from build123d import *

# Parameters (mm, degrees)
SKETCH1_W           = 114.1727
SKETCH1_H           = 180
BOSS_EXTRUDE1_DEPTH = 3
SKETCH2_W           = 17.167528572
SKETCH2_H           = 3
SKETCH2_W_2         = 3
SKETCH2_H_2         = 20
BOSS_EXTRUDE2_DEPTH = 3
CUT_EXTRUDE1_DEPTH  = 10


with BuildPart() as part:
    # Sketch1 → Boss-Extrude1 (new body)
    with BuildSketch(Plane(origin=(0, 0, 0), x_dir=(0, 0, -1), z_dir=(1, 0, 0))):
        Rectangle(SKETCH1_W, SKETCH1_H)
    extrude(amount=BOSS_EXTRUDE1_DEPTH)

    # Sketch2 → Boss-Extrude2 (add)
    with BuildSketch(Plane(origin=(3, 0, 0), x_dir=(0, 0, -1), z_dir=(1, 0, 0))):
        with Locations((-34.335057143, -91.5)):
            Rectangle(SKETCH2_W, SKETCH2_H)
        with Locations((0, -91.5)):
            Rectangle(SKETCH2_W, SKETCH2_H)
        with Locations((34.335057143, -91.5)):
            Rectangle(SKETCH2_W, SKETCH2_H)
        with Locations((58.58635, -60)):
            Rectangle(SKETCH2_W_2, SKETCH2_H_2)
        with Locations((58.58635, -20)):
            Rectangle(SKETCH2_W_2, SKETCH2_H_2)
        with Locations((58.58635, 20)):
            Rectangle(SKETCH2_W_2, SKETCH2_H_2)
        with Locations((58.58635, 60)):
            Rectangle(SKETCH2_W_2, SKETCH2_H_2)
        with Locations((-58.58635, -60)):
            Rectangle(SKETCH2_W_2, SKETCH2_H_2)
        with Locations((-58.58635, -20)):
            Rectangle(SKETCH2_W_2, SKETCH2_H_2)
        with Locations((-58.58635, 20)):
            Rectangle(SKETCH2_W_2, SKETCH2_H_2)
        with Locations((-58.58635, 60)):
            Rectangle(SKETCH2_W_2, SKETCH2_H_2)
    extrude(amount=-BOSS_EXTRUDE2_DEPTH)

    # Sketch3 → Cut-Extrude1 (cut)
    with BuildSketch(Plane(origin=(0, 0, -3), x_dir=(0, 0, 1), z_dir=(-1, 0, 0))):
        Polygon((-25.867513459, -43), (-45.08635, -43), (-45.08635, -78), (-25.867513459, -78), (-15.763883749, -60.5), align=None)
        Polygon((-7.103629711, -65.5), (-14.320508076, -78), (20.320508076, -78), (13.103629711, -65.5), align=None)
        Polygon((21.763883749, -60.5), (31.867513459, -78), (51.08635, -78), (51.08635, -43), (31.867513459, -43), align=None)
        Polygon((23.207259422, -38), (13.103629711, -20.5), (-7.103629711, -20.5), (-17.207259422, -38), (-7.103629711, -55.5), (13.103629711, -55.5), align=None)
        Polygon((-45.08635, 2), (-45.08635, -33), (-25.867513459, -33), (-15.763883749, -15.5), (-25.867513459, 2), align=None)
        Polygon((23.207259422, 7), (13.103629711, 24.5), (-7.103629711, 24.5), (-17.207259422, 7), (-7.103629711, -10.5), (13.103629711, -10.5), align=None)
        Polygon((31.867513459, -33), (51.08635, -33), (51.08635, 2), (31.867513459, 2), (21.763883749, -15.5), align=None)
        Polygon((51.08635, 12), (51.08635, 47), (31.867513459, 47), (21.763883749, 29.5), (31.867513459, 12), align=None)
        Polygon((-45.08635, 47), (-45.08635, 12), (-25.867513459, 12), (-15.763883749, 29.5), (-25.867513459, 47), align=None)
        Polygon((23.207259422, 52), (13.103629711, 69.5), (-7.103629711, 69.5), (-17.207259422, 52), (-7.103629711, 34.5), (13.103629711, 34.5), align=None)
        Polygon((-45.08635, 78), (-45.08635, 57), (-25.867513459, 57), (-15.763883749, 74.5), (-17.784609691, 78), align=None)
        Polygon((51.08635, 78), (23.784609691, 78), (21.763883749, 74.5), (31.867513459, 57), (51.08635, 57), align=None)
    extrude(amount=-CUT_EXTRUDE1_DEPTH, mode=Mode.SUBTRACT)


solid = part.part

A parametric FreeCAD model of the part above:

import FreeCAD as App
import Part
import Sketcher
Q = App.Units.Quantity

doc = App.newDocument("Part")
body = doc.addObject("PartDesign::Body", "Body")

# Sketch on YZ plane
sketch1 = body.newObject("Sketcher::SketchObject", "Sketch")
sketch1.AttachmentSupport = (doc.getObject("YZ_Plane"), [""])
sketch1.MapMode = "FlatFace"
sketch1.addGeometry([
    Part.LineSegment(App.Vector(90, 57, 0), App.Vector(-90, 57, 0)),
    Part.LineSegment(App.Vector(-90, 57, 0), App.Vector(-90, -57, 0)),
    Part.LineSegment(App.Vector(-90, -57, 0), App.Vector(90, -57, 0)),
    Part.LineSegment(App.Vector(90, -57, 0), App.Vector(90, 57, 0)),
], False)
sketch1.addConstraint([
    Sketcher.Constraint("Coincident", 0, 2, 1, 1),
    Sketcher.Constraint("Coincident", 1, 2, 2, 1),
    Sketcher.Constraint("Coincident", 2, 2, 3, 1),
    Sketcher.Constraint("Coincident", 3, 2, 0, 1),
    Sketcher.Constraint("Horizontal", 0),
    Sketcher.Constraint("Vertical", 1),
    Sketcher.Constraint("Horizontal", 2),
    Sketcher.Constraint("Vertical", 3),
    Sketcher.Constraint("Symmetric", 0, 2, 2, 2, -1, 1),
    Sketcher.Constraint("DistanceX", 0, 2, 0, 1, 180.0),
    Sketcher.Constraint("DistanceY", 1, 2, 1, 1, 114.1727),
])
pad1 = body.newObject("PartDesign::Pad", "Pad")
pad1.Profile = sketch1
pad1.Length = 3

# Sketch on YZ plane
sketch2 = body.newObject("Sketcher::SketchObject", "Sketch001")
sketch2.AttachmentSupport = (doc.getObject("YZ_Plane"), [""])
sketch2.MapMode = "FlatFace"
sketch2.AttachmentOffset = App.Placement(App.Vector(0, 0, 3), App.Rotation())
sketch2.addGeometry([
    Part.LineSegment(App.Vector(-90, 42.9, 0), App.Vector(-93, 42.9, 0)),  # 0
    Part.LineSegment(App.Vector(-93, 42.9, 0), App.Vector(-93, 25.8, 0)),  # 1
    Part.LineSegment(App.Vector(-93, 25.8, 0), App.Vector(-90, 25.8, 0)),  # 2
    Part.LineSegment(App.Vector(-90, 25.8, 0), App.Vector(-90, 42.9, 0)),  # 3
    Part.LineSegment(App.Vector(-90, 8.6, 0), App.Vector(-93, 8.6, 0)),  # 4
    Part.LineSegment(App.Vector(-93, 8.6, 0), App.Vector(-93, -8.6, 0)),  # 5
    Part.LineSegment(App.Vector(-93, -8.6, 0), App.Vector(-90, -8.6, 0)),  # 6
    Part.LineSegment(App.Vector(-90, -8.6, 0), App.Vector(-90, 8.6, 0)),  # 7
    Part.LineSegment(App.Vector(-90, -25.8, 0), App.Vector(-93, -25.8, 0)),  # 8
    Part.LineSegment(App.Vector(-93, -25.8, 0), App.Vector(-93, -42.9, 0)),  # 9
    Part.LineSegment(App.Vector(-93, -42.9, 0), App.Vector(-90, -42.9, 0)),  # 10
    Part.LineSegment(App.Vector(-90, -42.9, 0), App.Vector(-90, -25.8, 0)),  # 11
    Part.LineSegment(App.Vector(-50, -57.1, 0), App.Vector(-70, -57.1, 0)),  # 12
    Part.LineSegment(App.Vector(-70, -57.1, 0), App.Vector(-70, -60.1, 0)),  # 13
    Part.LineSegment(App.Vector(-70, -60.1, 0), App.Vector(-50, -60.1, 0)),  # 14
    Part.LineSegment(App.Vector(-50, -60.1, 0), App.Vector(-50, -57.1, 0)),  # 15
    Part.LineSegment(App.Vector(-10, -57.1, 0), App.Vector(-30, -57.1, 0)),  # 16
    Part.LineSegment(App.Vector(-30, -57.1, 0), App.Vector(-30, -60.1, 0)),  # 17
    Part.LineSegment(App.Vector(-30, -60.1, 0), App.Vector(-10, -60.1, 0)),  # 18
    Part.LineSegment(App.Vector(-10, -60.1, 0), App.Vector(-10, -57.1, 0)),  # 19
    Part.LineSegment(App.Vector(30, -57.1, 0), App.Vector(10, -57.1, 0)),  # 20
    Part.LineSegment(App.Vector(10, -57.1, 0), App.Vector(10, -60.1, 0)),  # 21
    Part.LineSegment(App.Vector(10, -60.1, 0), App.Vector(30, -60.1, 0)),  # 22
    Part.LineSegment(App.Vector(30, -60.1, 0), App.Vector(30, -57.1, 0)),  # 23
    Part.LineSegment(App.Vector(70, -57.1, 0), App.Vector(50, -57.1, 0)),  # 24
    Part.LineSegment(App.Vector(50, -57.1, 0), App.Vector(50, -60.1, 0)),  # 25
    Part.LineSegment(App.Vector(50, -60.1, 0), App.Vector(70, -60.1, 0)),  # 26
    Part.LineSegment(App.Vector(70, -60.1, 0), App.Vector(70, -57.1, 0)),  # 27
    Part.LineSegment(App.Vector(-50, 60.1, 0), App.Vector(-70, 60.1, 0)),  # 28
    Part.LineSegment(App.Vector(-70, 60.1, 0), App.Vector(-70, 57.1, 0)),  # 29
    Part.LineSegment(App.Vector(-70, 57.1, 0), App.Vector(-50, 57.1, 0)),  # 30
    Part.LineSegment(App.Vector(-50, 57.1, 0), App.Vector(-50, 60.1, 0)),  # 31
    Part.LineSegment(App.Vector(-10, 60.1, 0), App.Vector(-30, 60.1, 0)),  # 32
    Part.LineSegment(App.Vector(-30, 60.1, 0), App.Vector(-30, 57.1, 0)),  # 33
    Part.LineSegment(App.Vector(-30, 57.1, 0), App.Vector(-10, 57.1, 0)),  # 34
    Part.LineSegment(App.Vector(-10, 57.1, 0), App.Vector(-10, 60.1, 0)),  # 35
    Part.LineSegment(App.Vector(30, 60.1, 0), App.Vector(10, 60.1, 0)),  # 36
    Part.LineSegment(App.Vector(10, 60.1, 0), App.Vector(10, 57.1, 0)),  # 37
    Part.LineSegment(App.Vector(10, 57.1, 0), App.Vector(30, 57.1, 0)),  # 38
    Part.LineSegment(App.Vector(30, 57.1, 0), App.Vector(30, 60.1, 0)),  # 39
    Part.LineSegment(App.Vector(70, 60.1, 0), App.Vector(50, 60.1, 0)),  # 40
    Part.LineSegment(App.Vector(50, 60.1, 0), App.Vector(50, 57.1, 0)),  # 41
    Part.LineSegment(App.Vector(50, 57.1, 0), App.Vector(70, 57.1, 0)),  # 42
    Part.LineSegment(App.Vector(70, 57.1, 0), App.Vector(70, 60.1, 0)),  # 43
], False)
sketch2.addConstraint([
    Sketcher.Constraint("Coincident", 0, 2, 1, 1),
    Sketcher.Constraint("Coincident", 1, 2, 2, 1),
    Sketcher.Constraint("Coincident", 2, 2, 3, 1),
    Sketcher.Constraint("Coincident", 3, 2, 0, 1),
    Sketcher.Constraint("Coincident", 4, 2, 5, 1),
    Sketcher.Constraint("Coincident", 5, 2, 6, 1),
    Sketcher.Constraint("Coincident", 6, 2, 7, 1),
    Sketcher.Constraint("Coincident", 7, 2, 4, 1),
    Sketcher.Constraint("Coincident", 8, 2, 9, 1),
    Sketcher.Constraint("Coincident", 9, 2, 10, 1),
    Sketcher.Constraint("Coincident", 10, 2, 11, 1),
    Sketcher.Constraint("Coincident", 11, 2, 8, 1),
    Sketcher.Constraint("Coincident", 12, 2, 13, 1),
    Sketcher.Constraint("Coincident", 13, 2, 14, 1),
    Sketcher.Constraint("Coincident", 14, 2, 15, 1),
    Sketcher.Constraint("Coincident", 15, 2, 12, 1),
    Sketcher.Constraint("Coincident", 16, 2, 17, 1),
    Sketcher.Constraint("Coincident", 17, 2, 18, 1),
    Sketcher.Constraint("Coincident", 18, 2, 19, 1),
    Sketcher.Constraint("Coincident", 19, 2, 16, 1),
    Sketcher.Constraint("Coincident", 20, 2, 21, 1),
    Sketcher.Constraint("Coincident", 21, 2, 22, 1),
    Sketcher.Constraint("Coincident", 22, 2, 23, 1),
    Sketcher.Constraint("Coincident", 23, 2, 20, 1),
    Sketcher.Constraint("Coincident", 24, 2, 25, 1),
    Sketcher.Constraint("Coincident", 25, 2, 26, 1),
    Sketcher.Constraint("Coincident", 26, 2, 27, 1),
    Sketcher.Constraint("Coincident", 27, 2, 24, 1),
    Sketcher.Constraint("Coincident", 28, 2, 29, 1),
    Sketcher.Constraint("Coincident", 29, 2, 30, 1),
    Sketcher.Constraint("Coincident", 30, 2, 31, 1),
    Sketcher.Constraint("Coincident", 31, 2, 28, 1),
    Sketcher.Constraint("Coincident", 32, 2, 33, 1),
    Sketcher.Constraint("Coincident", 33, 2, 34, 1),
    Sketcher.Constraint("Coincident", 34, 2, 35, 1),
    Sketcher.Constraint("Coincident", 35, 2, 32, 1),
    Sketcher.Constraint("Coincident", 36, 2, 37, 1),
    Sketcher.Constraint("Coincident", 37, 2, 38, 1),
    Sketcher.Constraint("Coincident", 38, 2, 39, 1),
    Sketcher.Constraint("Coincident", 39, 2, 36, 1),
    Sketcher.Constraint("Coincident", 40, 2, 41, 1),
    Sketcher.Constraint("Coincident", 41, 2, 42, 1),
    Sketcher.Constraint("Coincident", 42, 2, 43, 1),
    Sketcher.Constraint("Coincident", 43, 2, 40, 1),
    Sketcher.Constraint("Horizontal", 0),
    Sketcher.Constraint("Vertical", 1),
    Sketcher.Constraint("Horizontal", 2),
    Sketcher.Constraint("Vertical", 3),
    Sketcher.Constraint("Horizontal", 4),
    Sketcher.Constraint("Vertical", 5),
    Sketcher.Constraint("Horizontal", 6),
    Sketcher.Constraint("Vertical", 7),
    Sketcher.Constraint("Horizontal", 8),
    Sketcher.Constraint("Vertical", 9),
    Sketcher.Constraint("Horizontal", 10),
    Sketcher.Constraint("Vertical", 11),
    Sketcher.Constraint("Horizontal", 12),
    Sketcher.Constraint("Vertical", 13),
    Sketcher.Constraint("Horizontal", 14),
    Sketcher.Constraint("Vertical", 15),
    Sketcher.Constraint("Horizontal", 16),
    Sketcher.Constraint("Vertical", 17),
    Sketcher.Constraint("Horizontal", 18),
    Sketcher.Constraint("Vertical", 19),
    Sketcher.Constraint("Horizontal", 20),
    Sketcher.Constraint("Vertical", 21),
    Sketcher.Constraint("Horizontal", 22),
    Sketcher.Constraint("Vertical", 23),
    Sketcher.Constraint("Horizontal", 24),
    Sketcher.Constraint("Vertical", 25),
    Sketcher.Constraint("Horizontal", 26),
    Sketcher.Constraint("Vertical", 27),
    Sketcher.Constraint("Horizontal", 28),
    Sketcher.Constraint("Vertical", 29),
    Sketcher.Constraint("Horizontal", 30),
    Sketcher.Constraint("Vertical", 31),
    Sketcher.Constraint("Horizontal", 32),
    Sketcher.Constraint("Vertical", 33),
    Sketcher.Constraint("Horizontal", 34),
    Sketcher.Constraint("Vertical", 35),
    Sketcher.Constraint("Horizontal", 36),
    Sketcher.Constraint("Vertical", 37),
    Sketcher.Constraint("Horizontal", 38),
    Sketcher.Constraint("Vertical", 39),
    Sketcher.Constraint("Horizontal", 40),
    Sketcher.Constraint("Vertical", 41),
    Sketcher.Constraint("Horizontal", 42),
    Sketcher.Constraint("Vertical", 43),
    Sketcher.Constraint("Symmetric", 26, 2, 28, 2, -1, 1),
    Sketcher.Constraint("Symmetric", 24, 2, 30, 2, -1, 1),
    Sketcher.Constraint("Symmetric", 22, 2, 32, 2, -1, 1),
    Sketcher.Constraint("Symmetric", 20, 2, 34, 2, -1, 1),
    Sketcher.Constraint("Symmetric", 18, 2, 36, 2, -1, 1),
    Sketcher.Constraint("Symmetric", 16, 2, 38, 2, -1, 1),
    Sketcher.Constraint("Symmetric", 14, 2, 40, 2, -1, 1),
    Sketcher.Constraint("Symmetric", 12, 2, 42, 2, -1, 1),
    Sketcher.Constraint("Symmetric", 19, 2, 20, 2, -2),
    Sketcher.Constraint("Symmetric", 17, 2, 22, 2, -2),
    Sketcher.Constraint("Symmetric", 15, 2, 24, 2, -2),
    Sketcher.Constraint("Symmetric", 13, 2, 26, 2, -2),
    Sketcher.Constraint("Symmetric", 1, 2, 8, 2, -1),
    Sketcher.Constraint("Symmetric", 3, 2, 10, 2, -1),
    Sketcher.Constraint("Horizontal", 15, 2, 16, 2),
    Sketcher.Constraint("Horizontal", 14, 2, 17, 2),
    Sketcher.Constraint("Vertical", 1, 2, 4, 2),
    Sketcher.Constraint("Vertical", 3, 2, 6, 2),
    Sketcher.Constraint("Equal", 14, 16),
    Sketcher.Constraint("Equal", 3, 5),
    Sketcher.Constraint("Equal", 10, 13),
    Sketcher.Constraint("DistanceX", 0, 2, 0, 1, 3.0),
    Sketcher.Constraint("DistanceX", 12, 2, 12, 1, 20.0),
    Sketcher.Constraint("DistanceX", 0, 2, -1, 1, 93.0),
    Sketcher.Constraint("DistanceX", 12, 2, -1, 1, 70.0),
    Sketcher.Constraint("DistanceX", 16, 2, -1, 1, 30.0),
    Sketcher.Constraint("DistanceY", 1, 2, 1, 1, 17.167529),
    Sketcher.Constraint("DistanceY", -1, 1, 0, 2, 42.918821),
    Sketcher.Constraint("DistanceY", 12, 2, -1, 1, 57.08635),
    Sketcher.Constraint("DistanceY", 4, 2, 1, 2, 17.167529),
])
pad2 = body.newObject("PartDesign::Pad", "Pad001")
pad2.Profile = sketch2
pad2.Length = 3
pad2.Reversed = True

# Sketch on YZ plane
sketch3 = body.newObject("Sketcher::SketchObject", "Sketch002")
sketch3.AttachmentSupport = (doc.getObject("YZ_Plane"), [""])
sketch3.MapMode = "FlatFace"
sketch3.addGeometry([
    Part.LineSegment(App.Vector(-43, -28.9, 0), App.Vector(-43, -48.1, 0)),  # 0
    Part.LineSegment(App.Vector(-43, -48.1, 0), App.Vector(-78, -48.1, 0)),  # 1
    Part.LineSegment(App.Vector(-78, -48.1, 0), App.Vector(-78, -28.9, 0)),  # 2
    Part.LineSegment(App.Vector(-78, -28.9, 0), App.Vector(-60.5, -18.8, 0)),  # 3
    Part.LineSegment(App.Vector(-60.5, -18.8, 0), App.Vector(-43, -28.9, 0)),  # 4
    Part.LineSegment(App.Vector(-65.5, -10.1, 0), App.Vector(-78, -17.3, 0)),  # 5
    Part.LineSegment(App.Vector(-78, -17.3, 0), App.Vector(-78, 17.3, 0)),  # 6
    Part.LineSegment(App.Vector(-78, 17.3, 0), App.Vector(-65.5, 10.1, 0)),  # 7
    Part.LineSegment(App.Vector(-65.5, 10.1, 0), App.Vector(-65.5, -10.1, 0)),  # 8
    Part.LineSegment(App.Vector(-60.5, 18.8, 0), App.Vector(-78, 28.9, 0)),  # 9
    Part.LineSegment(App.Vector(-78, 28.9, 0), App.Vector(-78, 48.1, 0)),  # 10
    Part.LineSegment(App.Vector(-78, 48.1, 0), App.Vector(-43, 48.1, 0)),  # 11
    Part.LineSegment(App.Vector(-43, 48.1, 0), App.Vector(-43, 28.9, 0)),  # 12
    Part.LineSegment(App.Vector(-43, 28.9, 0), App.Vector(-60.5, 18.8, 0)),  # 13
    Part.LineSegment(App.Vector(-38, 20.2, 0), App.Vector(-20.5, 10.1, 0)),  # 14
    Part.LineSegment(App.Vector(-20.5, 10.1, 0), App.Vector(-20.5, -10.1, 0)),  # 15
    Part.LineSegment(App.Vector(-20.5, -10.1, 0), App.Vector(-38, -20.2, 0)),  # 16
    Part.LineSegment(App.Vector(-38, -20.2, 0), App.Vector(-55.5, -10.1, 0)),  # 17
    Part.LineSegment(App.Vector(-55.5, -10.1, 0), App.Vector(-55.5, 10.1, 0)),  # 18
    Part.LineSegment(App.Vector(-55.5, 10.1, 0), App.Vector(-38, 20.2, 0)),  # 19
    Part.LineSegment(App.Vector(2, -48.1, 0), App.Vector(-33, -48.1, 0)),  # 20
    Part.LineSegment(App.Vector(-33, -48.1, 0), App.Vector(-33, -28.9, 0)),  # 21
    Part.LineSegment(App.Vector(-33, -28.9, 0), App.Vector(-15.5, -18.8, 0)),  # 22
    Part.LineSegment(App.Vector(-15.5, -18.8, 0), App.Vector(2, -28.9, 0)),  # 23
    Part.LineSegment(App.Vector(2, -28.9, 0), App.Vector(2, -48.1, 0)),  # 24
    Part.LineSegment(App.Vector(7, 20.2, 0), App.Vector(24.5, 10.1, 0)),  # 25
    Part.LineSegment(App.Vector(24.5, 10.1, 0), App.Vector(24.5, -10.1, 0)),  # 26
    Part.LineSegment(App.Vector(24.5, -10.1, 0), App.Vector(7, -20.2, 0)),  # 27
    Part.LineSegment(App.Vector(7, -20.2, 0), App.Vector(-10.5, -10.1, 0)),  # 28
    Part.LineSegment(App.Vector(-10.5, -10.1, 0), App.Vector(-10.5, 10.1, 0)),  # 29
    Part.LineSegment(App.Vector(-10.5, 10.1, 0), App.Vector(7, 20.2, 0)),  # 30
    Part.LineSegment(App.Vector(-33, 28.9, 0), App.Vector(-33, 48.1, 0)),  # 31
    Part.LineSegment(App.Vector(-33, 48.1, 0), App.Vector(2, 48.1, 0)),  # 32
    Part.LineSegment(App.Vector(2, 48.1, 0), App.Vector(2, 28.9, 0)),  # 33
    Part.LineSegment(App.Vector(2, 28.9, 0), App.Vector(-15.5, 18.8, 0)),  # 34
    Part.LineSegment(App.Vector(-15.5, 18.8, 0), App.Vector(-33, 28.9, 0)),  # 35
    Part.LineSegment(App.Vector(12, 48.1, 0), App.Vector(47, 48.1, 0)),  # 36
    Part.LineSegment(App.Vector(47, 48.1, 0), App.Vector(47, 28.9, 0)),  # 37
    Part.LineSegment(App.Vector(47, 28.9, 0), App.Vector(29.5, 18.8, 0)),  # 38
    Part.LineSegment(App.Vector(29.5, 18.8, 0), App.Vector(12, 28.9, 0)),  # 39
    Part.LineSegment(App.Vector(12, 28.9, 0), App.Vector(12, 48.1, 0)),  # 40
    Part.LineSegment(App.Vector(47, -48.1, 0), App.Vector(12, -48.1, 0)),  # 41
    Part.LineSegment(App.Vector(12, -48.1, 0), App.Vector(12, -28.9, 0)),  # 42
    Part.LineSegment(App.Vector(12, -28.9, 0), App.Vector(29.5, -18.8, 0)),  # 43
    Part.LineSegment(App.Vector(29.5, -18.8, 0), App.Vector(47, -28.9, 0)),  # 44
    Part.LineSegment(App.Vector(47, -28.9, 0), App.Vector(47, -48.1, 0)),  # 45
    Part.LineSegment(App.Vector(52, 20.2, 0), App.Vector(69.5, 10.1, 0)),  # 46
    Part.LineSegment(App.Vector(69.5, 10.1, 0), App.Vector(69.5, -10.1, 0)),  # 47
    Part.LineSegment(App.Vector(69.5, -10.1, 0), App.Vector(52, -20.2, 0)),  # 48
    Part.LineSegment(App.Vector(52, -20.2, 0), App.Vector(34.5, -10.1, 0)),  # 49
    Part.LineSegment(App.Vector(34.5, -10.1, 0), App.Vector(34.5, 10.1, 0)),  # 50
    Part.LineSegment(App.Vector(34.5, 10.1, 0), App.Vector(52, 20.2, 0)),  # 51
    Part.LineSegment(App.Vector(78, -48.1, 0), App.Vector(57, -48.1, 0)),  # 52
    Part.LineSegment(App.Vector(57, -48.1, 0), App.Vector(57, -28.9, 0)),  # 53
    Part.LineSegment(App.Vector(57, -28.9, 0), App.Vector(74.5, -18.8, 0)),  # 54
    Part.LineSegment(App.Vector(74.5, -18.8, 0), App.Vector(78, -20.8, 0)),  # 55
    Part.LineSegment(App.Vector(78, -20.8, 0), App.Vector(78, -48.1, 0)),  # 56
    Part.LineSegment(App.Vector(78, 48.1, 0), App.Vector(78, 20.8, 0)),  # 57
    Part.LineSegment(App.Vector(78, 20.8, 0), App.Vector(74.5, 18.8, 0)),  # 58
    Part.LineSegment(App.Vector(74.5, 18.8, 0), App.Vector(57, 28.9, 0)),  # 59
    Part.LineSegment(App.Vector(57, 28.9, 0), App.Vector(57, 48.1, 0)),  # 60
    Part.LineSegment(App.Vector(57, 48.1, 0), App.Vector(78, 48.1, 0)),  # 61
], False)
sketch3.addConstraint([
    Sketcher.Constraint("Coincident", 0, 2, 1, 1),
    Sketcher.Constraint("Coincident", 1, 2, 2, 1),
    Sketcher.Constraint("Coincident", 2, 2, 3, 1),
    Sketcher.Constraint("Coincident", 3, 2, 4, 1),
    Sketcher.Constraint("Coincident", 4, 2, 0, 1),
    Sketcher.Constraint("Coincident", 5, 2, 6, 1),
    Sketcher.Constraint("Coincident", 6, 2, 7, 1),
    Sketcher.Constraint("Coincident", 7, 2, 8, 1),
    Sketcher.Constraint("Coincident", 8, 2, 5, 1),
    Sketcher.Constraint("Coincident", 9, 2, 10, 1),
    Sketcher.Constraint("Coincident", 10, 2, 11, 1),
    Sketcher.Constraint("Coincident", 11, 2, 12, 1),
    Sketcher.Constraint("Coincident", 12, 2, 13, 1),
    Sketcher.Constraint("Coincident", 13, 2, 9, 1),
    Sketcher.Constraint("Coincident", 14, 2, 15, 1),
    Sketcher.Constraint("Coincident", 15, 2, 16, 1),
    Sketcher.Constraint("Coincident", 16, 2, 17, 1),
    Sketcher.Constraint("Coincident", 17, 2, 18, 1),
    Sketcher.Constraint("Coincident", 18, 2, 19, 1),
    Sketcher.Constraint("Coincident", 19, 2, 14, 1),
    Sketcher.Constraint("Coincident", 20, 2, 21, 1),
    Sketcher.Constraint("Coincident", 21, 2, 22, 1),
    Sketcher.Constraint("Coincident", 22, 2, 23, 1),
    Sketcher.Constraint("Coincident", 23, 2, 24, 1),
    Sketcher.Constraint("Coincident", 24, 2, 20, 1),
    Sketcher.Constraint("Coincident", 25, 2, 26, 1),
    Sketcher.Constraint("Coincident", 26, 2, 27, 1),
    Sketcher.Constraint("Coincident", 27, 2, 28, 1),
    Sketcher.Constraint("Coincident", 28, 2, 29, 1),
    Sketcher.Constraint("Coincident", 29, 2, 30, 1),
    Sketcher.Constraint("Coincident", 30, 2, 25, 1),
    Sketcher.Constraint("Coincident", 31, 2, 32, 1),
    Sketcher.Constraint("Coincident", 32, 2, 33, 1),
    Sketcher.Constraint("Coincident", 33, 2, 34, 1),
    Sketcher.Constraint("Coincident", 34, 2, 35, 1),
    Sketcher.Constraint("Coincident", 35, 2, 31, 1),
    Sketcher.Constraint("Coincident", 36, 2, 37, 1),
    Sketcher.Constraint("Coincident", 37, 2, 38, 1),
    Sketcher.Constraint("Coincident", 38, 2, 39, 1),
    Sketcher.Constraint("Coincident", 39, 2, 40, 1),
    Sketcher.Constraint("Coincident", 40, 2, 36, 1),
    Sketcher.Constraint("Coincident", 41, 2, 42, 1),
    Sketcher.Constraint("Coincident", 42, 2, 43, 1),
    Sketcher.Constraint("Coincident", 43, 2, 44, 1),
    Sketcher.Constraint("Coincident", 44, 2, 45, 1),
    Sketcher.Constraint("Coincident", 45, 2, 41, 1),
    Sketcher.Constraint("Coincident", 46, 2, 47, 1),
    Sketcher.Constraint("Coincident", 47, 2, 48, 1),
    Sketcher.Constraint("Coincident", 48, 2, 49, 1),
    Sketcher.Constraint("Coincident", 49, 2, 50, 1),
    Sketcher.Constraint("Coincident", 50, 2, 51, 1),
    Sketcher.Constraint("Coincident", 51, 2, 46, 1),
    Sketcher.Constraint("Coincident", 52, 2, 53, 1),
    Sketcher.Constraint("Coincident", 53, 2, 54, 1),
    Sketcher.Constraint("Coincident", 54, 2, 55, 1),
    Sketcher.Constraint("Coincident", 55, 2, 56, 1),
    Sketcher.Constraint("Coincident", 56, 2, 52, 1),
    Sketcher.Constraint("Coincident", 57, 2, 58, 1),
    Sketcher.Constraint("Coincident", 58, 2, 59, 1),
    Sketcher.Constraint("Coincident", 59, 2, 60, 1),
    Sketcher.Constraint("Coincident", 60, 2, 61, 1),
    Sketcher.Constraint("Coincident", 61, 2, 57, 1),
    Sketcher.Constraint("Vertical", 0),
    Sketcher.Constraint("Horizontal", 1),
    Sketcher.Constraint("Vertical", 2),
    Sketcher.Constraint("Vertical", 6),
    Sketcher.Constraint("Vertical", 8),
    Sketcher.Constraint("Vertical", 10),
    Sketcher.Constraint("Horizontal", 11),
    Sketcher.Constraint("Vertical", 12),
    Sketcher.Constraint("Vertical", 15),
    Sketcher.Constraint("Vertical", 18),
    Sketcher.Constraint("Horizontal", 20),
    Sketcher.Constraint("Vertical", 21),
    Sketcher.Constraint("Vertical", 24),
    Sketcher.Constraint("Vertical", 26),
    Sketcher.Constraint("Vertical", 29),
    Sketcher.Constraint("Vertical", 31),
    Sketcher.Constraint("Horizontal", 32),
    Sketcher.Constraint("Vertical", 33),
    Sketcher.Constraint("Horizontal", 36),
    Sketcher.Constraint("Vertical", 37),
    Sketcher.Constraint("Vertical", 40),
    Sketcher.Constraint("Horizontal", 41),
    Sketcher.Constraint("Vertical", 42),
    Sketcher.Constraint("Vertical", 45),
    Sketcher.Constraint("Vertical", 47),
    Sketcher.Constraint("Vertical", 50),
    Sketcher.Constraint("Horizontal", 52),
    Sketcher.Constraint("Vertical", 53),
    Sketcher.Constraint("Vertical", 56),
    Sketcher.Constraint("Vertical", 57),
    Sketcher.Constraint("Vertical", 60),
    Sketcher.Constraint("Horizontal", 61),
    Sketcher.Constraint("Symmetric", 10, 2, 56, 2, -1, 1),
    Sketcher.Constraint("Symmetric", 1, 2, 61, 2, -1, 1),
    Sketcher.Constraint("Symmetric", 1, 2, 56, 2, -2),
    Sketcher.Constraint("Symmetric", 4, 2, 12, 2, -1),
    Sketcher.Constraint("Symmetric", 3, 2, 13, 2, -1),
    Sketcher.Constraint("Symmetric", 16, 2, 19, 2, -1),
    Sketcher.Constraint("Symmetric", 27, 2, 30, 2, -1),
    Sketcher.Constraint("Symmetric", 20, 2, 31, 2, -1),
    Sketcher.Constraint("Symmetric", 23, 2, 33, 2, -1),
    Sketcher.Constraint("Symmetric", 22, 2, 34, 2, -1),
    Sketcher.Constraint("Symmetric", 40, 2, 41, 2, -1),
    Sketcher.Constraint("Symmetric", 38, 2, 43, 2, -1),
    Sketcher.Constraint("Symmetric", 37, 2, 44, 2, -1),
    Sketcher.Constraint("Symmetric", 48, 2, 51, 2, -1),
    Sketcher.Constraint("Symmetric", 54, 2, 58, 2, -1),
    Sketcher.Constraint("Symmetric", 53, 2, 59, 2, -1),
    Sketcher.Constraint("Parallel", 3, 5),
    Sketcher.Constraint("Parallel", 4, 7),
    Sketcher.Constraint("Parallel", 7, 9),
    Sketcher.Constraint("Parallel", 5, 13),
    Sketcher.Constraint("Parallel", 9, 14),
    Sketcher.Constraint("Parallel", 13, 16),
    Sketcher.Constraint("Parallel", 14, 17),
    Sketcher.Constraint("Parallel", 16, 19),
    Sketcher.Constraint("Parallel", 19, 22),
    Sketcher.Constraint("Parallel", 17, 23),
    Sketcher.Constraint("Parallel", 23, 25),
    Sketcher.Constraint("Parallel", 22, 27),
    Sketcher.Constraint("Parallel", 25, 28),
    Sketcher.Constraint("Parallel", 27, 30),
    Sketcher.Constraint("Parallel", 28, 35),
    Sketcher.Constraint("Parallel", 34, 38),
    Sketcher.Constraint("Parallel", 35, 39),
    Sketcher.Constraint("Parallel", 38, 43),
    Sketcher.Constraint("Parallel", 44, 46),
    Sketcher.Constraint("Parallel", 43, 48),
    Sketcher.Constraint("Parallel", 46, 49),
    Sketcher.Constraint("Parallel", 48, 51),
    Sketcher.Constraint("Parallel", 51, 54),
    Sketcher.Constraint("Parallel", 49, 55),
    Sketcher.Constraint("Parallel", 54, 58),
    Sketcher.Constraint("Horizontal", 2, 2, 4, 2),
    Sketcher.Constraint("Horizontal", 7, 2, 14, 2),
    Sketcher.Constraint("Horizontal", 8, 2, 15, 2),
    Sketcher.Constraint("Horizontal", 15, 2, 17, 2),
    Sketcher.Constraint("Horizontal", 1, 2, 20, 2),
    Sketcher.Constraint("Horizontal", 4, 2, 21, 2),
    Sketcher.Constraint("Horizontal", 3, 2, 22, 2),
    Sketcher.Constraint("Horizontal", 21, 2, 23, 2),
    Sketcher.Constraint("Horizontal", 18, 2, 25, 2),
    Sketcher.Constraint("Horizontal", 16, 2, 27, 2),
    Sketcher.Constraint("Horizontal", 26, 2, 28, 2),
    Sketcher.Constraint("Horizontal", 32, 2, 36, 2),
    Sketcher.Constraint("Horizontal", 35, 2, 37, 2),
    Sketcher.Constraint("Horizontal", 34, 2, 38, 2),
    Sketcher.Constraint("Horizontal", 37, 2, 39, 2),
    Sketcher.Constraint("Horizontal", 29, 2, 46, 2),
    Sketcher.Constraint("Horizontal", 27, 2, 48, 2),
    Sketcher.Constraint("Horizontal", 47, 2, 49, 2),
    Sketcher.Constraint("Horizontal", 44, 2, 53, 2),
    Sketcher.Constraint("Horizontal", 43, 2, 54, 2),
    Sketcher.Constraint("Vertical", 2, 2, 5, 2),
    Sketcher.Constraint("Equal", 13, 14),
    Sketcher.Constraint("DistanceX", 1, 2, 1, 1, 35.0),
    Sketcher.Constraint("DistanceX", 52, 2, 52, 1, 21.0),
    Sketcher.Constraint("Angle", 3, Q("30 deg")),
    Sketcher.Constraint("DistanceX", 0, 2, -1, 1, 43.0),
    Sketcher.Constraint("DistanceX", 16, 2, -1, 1, 38.0),
    Sketcher.Constraint("DistanceX", 20, 2, -1, 1, 33.0),
    Sketcher.Constraint("DistanceX", -1, 1, 27, 2, 7.0),
    Sketcher.Constraint("DistanceX", -1, 1, 36, 2, 47.0),
    Sketcher.Constraint("DistanceX", -1, 1, 48, 2, 52.0),
    Sketcher.Constraint("DistanceX", 7, 2, -1, 1, 65.5),
    Sketcher.Constraint("DistanceY", 8, 2, 8, 1, 20.207259),
    Sketcher.Constraint("DistanceY", 56, 2, 56, 1, 27.30174),
    Sketcher.Constraint("DistanceY", 0, 2, -1, 1, 48.08635),
])
pocket1 = body.newObject("PartDesign::Pocket", "Pocket")
pocket1.Profile = sketch3
pocket1.Length = 10
pocket1.Reversed = True

doc.recompute()
